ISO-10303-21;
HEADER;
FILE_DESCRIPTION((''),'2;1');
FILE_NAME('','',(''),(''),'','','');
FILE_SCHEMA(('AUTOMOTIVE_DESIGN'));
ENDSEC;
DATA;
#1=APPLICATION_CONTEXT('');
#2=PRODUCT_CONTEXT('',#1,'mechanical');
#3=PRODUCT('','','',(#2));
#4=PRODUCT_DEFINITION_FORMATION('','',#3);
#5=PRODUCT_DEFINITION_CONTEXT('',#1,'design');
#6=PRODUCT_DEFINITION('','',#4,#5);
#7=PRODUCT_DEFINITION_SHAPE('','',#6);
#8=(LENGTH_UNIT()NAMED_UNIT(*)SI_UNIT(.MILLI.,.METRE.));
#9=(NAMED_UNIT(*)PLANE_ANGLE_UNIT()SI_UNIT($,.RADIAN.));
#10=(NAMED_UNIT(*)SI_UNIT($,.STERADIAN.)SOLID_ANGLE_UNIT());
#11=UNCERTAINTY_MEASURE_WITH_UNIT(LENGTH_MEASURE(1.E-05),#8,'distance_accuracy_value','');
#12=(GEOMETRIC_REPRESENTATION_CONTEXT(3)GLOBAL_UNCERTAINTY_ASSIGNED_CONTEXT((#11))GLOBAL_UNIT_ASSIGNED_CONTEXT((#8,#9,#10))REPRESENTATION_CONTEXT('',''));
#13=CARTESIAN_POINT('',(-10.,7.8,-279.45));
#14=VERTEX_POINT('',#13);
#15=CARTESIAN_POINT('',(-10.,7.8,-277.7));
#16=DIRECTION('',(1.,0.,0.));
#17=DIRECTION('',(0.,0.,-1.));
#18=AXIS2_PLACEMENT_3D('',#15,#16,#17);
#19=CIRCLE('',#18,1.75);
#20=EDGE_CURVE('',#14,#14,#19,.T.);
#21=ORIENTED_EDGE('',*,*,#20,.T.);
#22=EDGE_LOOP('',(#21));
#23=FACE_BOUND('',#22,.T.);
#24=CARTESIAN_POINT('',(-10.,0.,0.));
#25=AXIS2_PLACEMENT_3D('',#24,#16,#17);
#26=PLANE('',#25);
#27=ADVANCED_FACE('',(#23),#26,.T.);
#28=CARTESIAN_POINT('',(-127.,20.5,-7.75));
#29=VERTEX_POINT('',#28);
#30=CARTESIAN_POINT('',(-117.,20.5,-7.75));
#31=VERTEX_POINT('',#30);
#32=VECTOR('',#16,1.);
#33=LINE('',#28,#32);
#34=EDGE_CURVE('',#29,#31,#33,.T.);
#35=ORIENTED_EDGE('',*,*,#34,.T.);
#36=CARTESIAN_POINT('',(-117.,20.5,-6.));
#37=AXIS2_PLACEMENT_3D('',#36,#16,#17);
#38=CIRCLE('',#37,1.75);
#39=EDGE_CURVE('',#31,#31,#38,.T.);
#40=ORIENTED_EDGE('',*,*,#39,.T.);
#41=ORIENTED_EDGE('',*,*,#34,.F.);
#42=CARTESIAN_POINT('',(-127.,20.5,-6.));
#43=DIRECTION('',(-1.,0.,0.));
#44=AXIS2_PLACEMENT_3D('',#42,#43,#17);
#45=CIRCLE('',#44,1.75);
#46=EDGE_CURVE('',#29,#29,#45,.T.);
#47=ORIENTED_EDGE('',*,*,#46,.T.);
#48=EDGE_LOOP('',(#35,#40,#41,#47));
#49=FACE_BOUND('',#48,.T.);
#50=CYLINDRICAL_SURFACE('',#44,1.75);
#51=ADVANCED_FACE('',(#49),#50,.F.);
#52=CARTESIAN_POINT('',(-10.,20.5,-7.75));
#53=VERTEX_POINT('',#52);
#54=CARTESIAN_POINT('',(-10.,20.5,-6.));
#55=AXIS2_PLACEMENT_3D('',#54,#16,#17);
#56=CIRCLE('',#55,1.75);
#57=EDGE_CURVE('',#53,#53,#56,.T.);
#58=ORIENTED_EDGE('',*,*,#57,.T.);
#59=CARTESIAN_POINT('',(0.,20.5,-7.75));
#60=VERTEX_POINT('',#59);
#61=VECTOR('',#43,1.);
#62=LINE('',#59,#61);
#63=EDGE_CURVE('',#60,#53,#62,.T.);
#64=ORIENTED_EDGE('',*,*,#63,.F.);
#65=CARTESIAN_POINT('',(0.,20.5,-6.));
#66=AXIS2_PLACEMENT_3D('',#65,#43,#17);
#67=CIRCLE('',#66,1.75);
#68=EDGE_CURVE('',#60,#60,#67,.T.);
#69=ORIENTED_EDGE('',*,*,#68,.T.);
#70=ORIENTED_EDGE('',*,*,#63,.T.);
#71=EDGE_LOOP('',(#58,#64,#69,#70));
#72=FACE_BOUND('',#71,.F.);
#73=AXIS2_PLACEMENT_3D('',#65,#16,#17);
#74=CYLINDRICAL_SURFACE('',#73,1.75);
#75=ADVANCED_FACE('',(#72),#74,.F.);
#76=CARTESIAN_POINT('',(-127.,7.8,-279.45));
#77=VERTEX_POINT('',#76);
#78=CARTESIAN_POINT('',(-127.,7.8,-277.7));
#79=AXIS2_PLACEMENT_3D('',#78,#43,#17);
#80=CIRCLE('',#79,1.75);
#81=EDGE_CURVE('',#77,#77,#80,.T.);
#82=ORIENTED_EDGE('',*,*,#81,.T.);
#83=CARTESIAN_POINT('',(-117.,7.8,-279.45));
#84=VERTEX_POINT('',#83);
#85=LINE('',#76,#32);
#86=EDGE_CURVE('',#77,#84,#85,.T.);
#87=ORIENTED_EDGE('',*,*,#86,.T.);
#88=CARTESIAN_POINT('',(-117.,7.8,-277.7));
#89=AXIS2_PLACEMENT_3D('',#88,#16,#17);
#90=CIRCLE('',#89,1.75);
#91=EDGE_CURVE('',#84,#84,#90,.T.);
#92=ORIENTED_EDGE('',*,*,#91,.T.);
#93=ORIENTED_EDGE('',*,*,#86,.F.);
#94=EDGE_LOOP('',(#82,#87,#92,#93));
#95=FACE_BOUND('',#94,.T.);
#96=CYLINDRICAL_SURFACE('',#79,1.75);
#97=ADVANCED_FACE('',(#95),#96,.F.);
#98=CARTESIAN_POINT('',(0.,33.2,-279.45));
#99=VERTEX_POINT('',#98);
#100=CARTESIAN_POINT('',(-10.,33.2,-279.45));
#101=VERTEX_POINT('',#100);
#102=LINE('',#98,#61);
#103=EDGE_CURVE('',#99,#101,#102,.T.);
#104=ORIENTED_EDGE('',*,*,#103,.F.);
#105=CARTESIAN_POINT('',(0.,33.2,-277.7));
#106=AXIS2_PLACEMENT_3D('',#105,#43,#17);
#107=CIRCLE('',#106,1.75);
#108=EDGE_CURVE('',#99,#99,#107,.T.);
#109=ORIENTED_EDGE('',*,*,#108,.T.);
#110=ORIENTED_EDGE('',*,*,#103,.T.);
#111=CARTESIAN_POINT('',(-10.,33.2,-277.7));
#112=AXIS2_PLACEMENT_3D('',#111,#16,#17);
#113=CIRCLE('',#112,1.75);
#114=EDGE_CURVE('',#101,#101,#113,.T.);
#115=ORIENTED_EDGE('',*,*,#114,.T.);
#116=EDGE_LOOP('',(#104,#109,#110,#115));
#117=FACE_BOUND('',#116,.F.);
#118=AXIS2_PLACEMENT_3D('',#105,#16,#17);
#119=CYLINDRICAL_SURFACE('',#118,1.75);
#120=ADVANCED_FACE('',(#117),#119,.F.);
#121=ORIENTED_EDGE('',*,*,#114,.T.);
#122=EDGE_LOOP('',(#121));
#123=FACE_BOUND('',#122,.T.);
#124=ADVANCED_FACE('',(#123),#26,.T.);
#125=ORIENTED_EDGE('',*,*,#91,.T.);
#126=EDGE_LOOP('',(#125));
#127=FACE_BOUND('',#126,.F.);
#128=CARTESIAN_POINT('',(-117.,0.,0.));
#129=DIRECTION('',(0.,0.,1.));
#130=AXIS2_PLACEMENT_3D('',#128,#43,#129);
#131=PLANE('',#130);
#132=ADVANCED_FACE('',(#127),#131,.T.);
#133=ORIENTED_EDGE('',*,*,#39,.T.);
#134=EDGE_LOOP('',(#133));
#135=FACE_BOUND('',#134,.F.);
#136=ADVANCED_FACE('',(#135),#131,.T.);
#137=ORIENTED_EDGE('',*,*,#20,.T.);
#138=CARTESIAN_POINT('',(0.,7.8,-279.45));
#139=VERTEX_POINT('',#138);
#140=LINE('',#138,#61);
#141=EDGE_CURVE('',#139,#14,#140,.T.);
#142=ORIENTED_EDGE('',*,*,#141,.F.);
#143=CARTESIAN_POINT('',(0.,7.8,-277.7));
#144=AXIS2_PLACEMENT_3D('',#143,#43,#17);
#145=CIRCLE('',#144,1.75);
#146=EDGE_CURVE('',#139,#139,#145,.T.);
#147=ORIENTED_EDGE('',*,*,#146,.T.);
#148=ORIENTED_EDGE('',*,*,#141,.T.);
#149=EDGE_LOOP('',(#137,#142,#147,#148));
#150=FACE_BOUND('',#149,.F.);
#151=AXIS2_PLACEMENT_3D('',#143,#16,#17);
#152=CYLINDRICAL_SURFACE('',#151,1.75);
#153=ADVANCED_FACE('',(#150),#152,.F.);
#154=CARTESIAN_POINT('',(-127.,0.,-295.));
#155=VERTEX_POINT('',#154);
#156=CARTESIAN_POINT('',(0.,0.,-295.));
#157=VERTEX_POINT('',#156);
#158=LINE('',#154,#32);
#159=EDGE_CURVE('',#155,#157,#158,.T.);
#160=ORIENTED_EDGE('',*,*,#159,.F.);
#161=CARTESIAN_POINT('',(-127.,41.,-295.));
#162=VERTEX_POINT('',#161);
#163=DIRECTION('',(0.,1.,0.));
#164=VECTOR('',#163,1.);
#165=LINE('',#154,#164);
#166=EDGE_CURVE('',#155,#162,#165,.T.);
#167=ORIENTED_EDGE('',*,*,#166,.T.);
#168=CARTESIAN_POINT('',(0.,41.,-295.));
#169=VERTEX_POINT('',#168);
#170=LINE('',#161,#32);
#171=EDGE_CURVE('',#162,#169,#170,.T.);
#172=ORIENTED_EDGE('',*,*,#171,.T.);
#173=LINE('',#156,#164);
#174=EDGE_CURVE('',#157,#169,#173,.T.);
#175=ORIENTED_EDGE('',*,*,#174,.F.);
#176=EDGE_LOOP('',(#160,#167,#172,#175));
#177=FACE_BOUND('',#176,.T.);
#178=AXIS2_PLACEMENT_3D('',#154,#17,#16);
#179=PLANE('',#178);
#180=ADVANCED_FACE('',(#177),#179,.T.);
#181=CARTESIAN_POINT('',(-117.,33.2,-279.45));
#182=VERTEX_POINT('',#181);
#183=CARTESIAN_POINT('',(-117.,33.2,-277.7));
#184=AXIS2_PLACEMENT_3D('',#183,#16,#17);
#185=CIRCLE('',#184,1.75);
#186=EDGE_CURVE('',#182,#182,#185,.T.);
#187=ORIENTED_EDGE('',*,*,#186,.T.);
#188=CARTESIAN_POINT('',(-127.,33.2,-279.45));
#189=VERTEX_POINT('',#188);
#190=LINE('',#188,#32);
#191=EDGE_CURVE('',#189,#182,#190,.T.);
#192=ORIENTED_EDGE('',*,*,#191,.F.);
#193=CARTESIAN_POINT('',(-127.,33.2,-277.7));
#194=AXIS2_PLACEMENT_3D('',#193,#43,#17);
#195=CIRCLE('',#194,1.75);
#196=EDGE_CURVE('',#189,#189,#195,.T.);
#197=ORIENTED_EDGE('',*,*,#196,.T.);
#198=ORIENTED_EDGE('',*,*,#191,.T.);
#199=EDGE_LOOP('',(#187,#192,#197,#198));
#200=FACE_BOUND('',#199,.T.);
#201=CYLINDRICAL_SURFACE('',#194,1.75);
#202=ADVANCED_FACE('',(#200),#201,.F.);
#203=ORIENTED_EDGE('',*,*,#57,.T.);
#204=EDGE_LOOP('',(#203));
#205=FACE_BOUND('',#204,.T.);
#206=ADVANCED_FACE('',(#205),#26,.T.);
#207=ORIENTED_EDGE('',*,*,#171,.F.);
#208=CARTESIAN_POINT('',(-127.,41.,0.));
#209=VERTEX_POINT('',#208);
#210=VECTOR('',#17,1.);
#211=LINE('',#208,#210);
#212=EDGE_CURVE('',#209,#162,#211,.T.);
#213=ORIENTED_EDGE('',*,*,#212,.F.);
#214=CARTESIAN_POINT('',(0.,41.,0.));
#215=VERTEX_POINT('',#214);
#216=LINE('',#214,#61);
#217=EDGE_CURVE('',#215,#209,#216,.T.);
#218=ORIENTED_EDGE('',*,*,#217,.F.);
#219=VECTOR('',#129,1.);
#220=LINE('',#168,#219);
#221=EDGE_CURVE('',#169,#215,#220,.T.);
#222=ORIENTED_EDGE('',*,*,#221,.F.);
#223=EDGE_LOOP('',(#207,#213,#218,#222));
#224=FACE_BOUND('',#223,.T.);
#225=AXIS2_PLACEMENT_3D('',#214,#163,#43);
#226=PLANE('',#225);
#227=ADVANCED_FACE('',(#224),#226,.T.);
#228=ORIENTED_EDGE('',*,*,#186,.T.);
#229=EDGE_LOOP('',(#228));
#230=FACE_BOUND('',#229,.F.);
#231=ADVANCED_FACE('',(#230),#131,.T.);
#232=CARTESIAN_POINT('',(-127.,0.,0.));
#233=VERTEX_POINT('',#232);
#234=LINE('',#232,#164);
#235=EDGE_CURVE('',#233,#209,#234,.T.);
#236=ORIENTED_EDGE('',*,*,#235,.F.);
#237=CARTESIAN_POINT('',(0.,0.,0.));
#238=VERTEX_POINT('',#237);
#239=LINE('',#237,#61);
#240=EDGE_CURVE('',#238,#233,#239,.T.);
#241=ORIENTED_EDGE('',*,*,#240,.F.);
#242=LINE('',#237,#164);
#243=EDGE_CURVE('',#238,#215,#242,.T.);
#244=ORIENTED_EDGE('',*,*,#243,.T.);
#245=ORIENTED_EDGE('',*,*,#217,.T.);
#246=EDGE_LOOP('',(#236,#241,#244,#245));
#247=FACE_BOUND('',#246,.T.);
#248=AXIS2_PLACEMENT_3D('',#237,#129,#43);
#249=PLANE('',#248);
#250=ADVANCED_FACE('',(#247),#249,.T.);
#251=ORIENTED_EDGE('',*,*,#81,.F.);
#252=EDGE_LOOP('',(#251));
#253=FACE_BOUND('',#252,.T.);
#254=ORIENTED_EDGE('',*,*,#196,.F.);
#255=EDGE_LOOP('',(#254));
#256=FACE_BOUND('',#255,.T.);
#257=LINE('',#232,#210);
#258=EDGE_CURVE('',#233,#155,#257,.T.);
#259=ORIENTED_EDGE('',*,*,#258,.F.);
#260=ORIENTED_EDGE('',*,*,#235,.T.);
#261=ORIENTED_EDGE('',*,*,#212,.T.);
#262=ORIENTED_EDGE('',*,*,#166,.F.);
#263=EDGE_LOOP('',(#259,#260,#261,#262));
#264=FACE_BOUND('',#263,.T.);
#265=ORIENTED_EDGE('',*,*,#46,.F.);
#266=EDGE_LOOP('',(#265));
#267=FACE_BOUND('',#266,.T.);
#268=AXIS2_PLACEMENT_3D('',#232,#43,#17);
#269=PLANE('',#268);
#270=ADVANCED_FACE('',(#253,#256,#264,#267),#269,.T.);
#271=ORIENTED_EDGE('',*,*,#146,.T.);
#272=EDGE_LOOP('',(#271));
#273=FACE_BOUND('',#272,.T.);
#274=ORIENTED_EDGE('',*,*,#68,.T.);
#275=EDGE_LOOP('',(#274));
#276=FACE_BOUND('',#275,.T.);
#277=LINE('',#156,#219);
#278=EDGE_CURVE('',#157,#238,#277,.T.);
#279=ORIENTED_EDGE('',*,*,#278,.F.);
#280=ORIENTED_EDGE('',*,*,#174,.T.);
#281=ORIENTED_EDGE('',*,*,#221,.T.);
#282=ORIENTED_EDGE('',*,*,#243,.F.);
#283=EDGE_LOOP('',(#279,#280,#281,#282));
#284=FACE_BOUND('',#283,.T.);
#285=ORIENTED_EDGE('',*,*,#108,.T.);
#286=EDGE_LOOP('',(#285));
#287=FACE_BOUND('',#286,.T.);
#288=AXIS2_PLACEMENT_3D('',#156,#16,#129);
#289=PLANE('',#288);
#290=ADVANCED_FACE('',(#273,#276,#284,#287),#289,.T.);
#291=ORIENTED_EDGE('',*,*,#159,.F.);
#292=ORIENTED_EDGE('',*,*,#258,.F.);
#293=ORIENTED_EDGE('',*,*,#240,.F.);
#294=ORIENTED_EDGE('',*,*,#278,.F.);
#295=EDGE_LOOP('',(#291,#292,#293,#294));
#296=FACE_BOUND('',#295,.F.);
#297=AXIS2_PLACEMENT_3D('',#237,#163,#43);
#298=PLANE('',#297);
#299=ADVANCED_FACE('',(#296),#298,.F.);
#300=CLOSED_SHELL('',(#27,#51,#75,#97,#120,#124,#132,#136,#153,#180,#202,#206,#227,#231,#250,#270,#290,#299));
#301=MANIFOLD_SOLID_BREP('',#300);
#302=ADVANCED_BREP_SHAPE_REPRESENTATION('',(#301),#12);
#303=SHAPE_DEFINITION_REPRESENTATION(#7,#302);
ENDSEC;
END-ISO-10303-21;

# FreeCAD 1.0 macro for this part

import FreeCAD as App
import Part
import Sketcher
Q = App.Units.Quantity


def add_polygon(sketch, points):
    """Adds a closed chain of lines whose ends are joined by coincident constraints."""
    first, n = sketch.GeometryCount, len(points)
    for a, b in zip(points, points[1:] + points[:1]):
        sketch.addGeometry(Part.LineSegment(App.Vector(*a, 0), App.Vector(*b, 0)), False)
    for i in range(n):
        sketch.addConstraint(Sketcher.Constraint("Coincident", first + i, 2, first + (i + 1) % n, 1))

doc = App.newDocument("Part")
body = doc.addObject("PartDesign::Body", "Body")

sketch1 = body.newObject("Sketcher::SketchObject", "Sketch")
sketch1.AttachmentSupport = (doc.getObject("XZ_Plane"), [""])
sketch1.MapMode = "FlatFace"
add_polygon(sketch1, [(-127, 0), (0, 0), (0, -295), (-127, -295)])
sketch1.addConstraint([
    Sketcher.Constraint("Horizontal", 0),
    Sketcher.Constraint("Vertical", 1),
    Sketcher.Constraint("Horizontal", 2),
    Sketcher.Constraint("Vertical", 3),
    Sketcher.Constraint("Coincident", 0, 2, -1, 1),
    Sketcher.Constraint("DistanceX", 0, 1, 0, 2, Q("127 mm")),
    Sketcher.Constraint("DistanceY", 1, 2, 1, 1, Q("295 mm")),
])
pad1 = body.newObject("PartDesign::Pad", "Pad")
pad1.Profile = sketch1
pad1.Length = 41
pad1.Reversed = True

sketch2 = body.newObject("Sketcher::SketchObject", "Sketch001")
sketch2.AttachmentSupport = (doc.getObject("YZ_Plane"), [""])
sketch2.MapMode = "FlatFace"
sketch2.addGeometry([
    Part.Circle(App.Vector(20.5, -6, 0), App.Vector(0, 0, 1), 1.8),
    Part.Circle(App.Vector(33.2, -277.7, 0), App.Vector(0, 0, 1), 1.8),
    Part.Circle(App.Vector(7.8, -277.7, 0), App.Vector(0, 0, 1), 1.8),
], False)
sketch2.addConstraint([
    Sketcher.Constraint("Equal", 0, 1),
    Sketcher.Constraint("Equal", 1, 2),
    Sketcher.Constraint("Horizontal", 1, 3, 2, 3),
    Sketcher.Constraint("Diameter", 0, Q("3.5 mm")),
    Sketcher.Constraint("DistanceY", 0, 3, -1, 1, Q("6 mm")),
    Sketcher.Constraint("DistanceX", -1, 1, 0, 3, Q("20.5 mm")),
    Sketcher.Constraint("DistanceY", 1, 3, -1, 1, Q("277.7 mm")),
    Sketcher.Constraint("DistanceX", -1, 1, 2, 3, Q("7.8 mm")),
    Sketcher.Constraint("DistanceX", 2, 3, 1, 3, Q("25.4 mm")),
])
pocket1 = body.newObject("PartDesign::Pocket", "Pocket")
pocket1.Profile = sketch2
pocket1.Length = 10
doc.recompute()

datumplane = body.newObject("PartDesign::Plane", "DatumPlane")
datumplane.AttachmentSupport = (doc.getObject("YZ_Plane"), [""])
datumplane.MapMode = "FlatFace"
datumplane.AttachmentOffset = App.Placement(App.Vector(0, 0, -63.5), App.Rotation())
mirrored = body.newObject("PartDesign::Mirrored", "Mirrored")
mirrored.Originals = [pocket1]
mirrored.MirrorPlane = (datumplane, [""])
body.Tip = mirrored

doc.recompute()
